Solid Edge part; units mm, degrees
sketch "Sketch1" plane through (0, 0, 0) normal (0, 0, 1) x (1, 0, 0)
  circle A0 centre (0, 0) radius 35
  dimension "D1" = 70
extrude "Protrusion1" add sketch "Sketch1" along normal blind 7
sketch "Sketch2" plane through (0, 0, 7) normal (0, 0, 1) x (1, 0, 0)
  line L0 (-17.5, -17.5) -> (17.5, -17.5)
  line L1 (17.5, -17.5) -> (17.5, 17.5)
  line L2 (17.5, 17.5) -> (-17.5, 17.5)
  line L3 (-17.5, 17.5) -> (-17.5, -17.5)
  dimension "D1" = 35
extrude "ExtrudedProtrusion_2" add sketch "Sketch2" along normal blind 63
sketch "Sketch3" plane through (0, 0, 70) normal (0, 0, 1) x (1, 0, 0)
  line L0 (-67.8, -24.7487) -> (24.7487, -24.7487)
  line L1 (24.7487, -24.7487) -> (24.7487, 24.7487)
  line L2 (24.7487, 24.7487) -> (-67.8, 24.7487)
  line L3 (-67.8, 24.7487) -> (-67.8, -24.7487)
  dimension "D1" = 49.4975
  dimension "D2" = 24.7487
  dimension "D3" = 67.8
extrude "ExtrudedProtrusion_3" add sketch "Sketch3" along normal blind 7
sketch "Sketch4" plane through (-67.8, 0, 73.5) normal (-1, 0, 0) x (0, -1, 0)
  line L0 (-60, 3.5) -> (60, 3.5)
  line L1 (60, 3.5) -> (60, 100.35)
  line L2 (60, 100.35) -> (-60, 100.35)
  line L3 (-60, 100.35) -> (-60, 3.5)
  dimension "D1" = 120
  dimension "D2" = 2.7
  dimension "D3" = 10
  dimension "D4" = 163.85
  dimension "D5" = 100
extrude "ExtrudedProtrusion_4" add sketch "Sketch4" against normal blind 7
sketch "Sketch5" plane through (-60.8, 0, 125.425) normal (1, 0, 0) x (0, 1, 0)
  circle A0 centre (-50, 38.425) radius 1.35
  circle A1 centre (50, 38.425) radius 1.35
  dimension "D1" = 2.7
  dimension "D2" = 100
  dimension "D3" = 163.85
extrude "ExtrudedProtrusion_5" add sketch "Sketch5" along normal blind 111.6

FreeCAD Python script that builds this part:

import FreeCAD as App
import Part
import Sketcher

V = App.Vector


def add_polygon(sketch, points):
    """Adds a closed chain of lines whose ends are joined by coincident constraints."""
    first, n = sketch.GeometryCount, len(points)
    for a, b in zip(points, points[1:] + points[:1]):
        sketch.addGeometry(Part.LineSegment(App.Vector(*a, 0), App.Vector(*b, 0)), False)
    for i in range(n):
        sketch.addConstraint(Sketcher.Constraint("Coincident", first + i, 2, first + (i + 1) % n, 1))

doc = App.newDocument("Part")
body = doc.addObject("PartDesign::Body", "Body")

sketch1 = body.newObject("Sketcher::SketchObject", "Sketch")
sketch1.AttachmentSupport = (doc.getObject("XY_Plane"), [""])
sketch1.MapMode = "FlatFace"
sketch1.addGeometry(Part.Circle(V(0, 0, 0), V(0, 0, 1), 35), False)
sketch1.addConstraint([
    Sketcher.Constraint("Coincident", 0, 3, -1, 1),
    Sketcher.Constraint("Diameter", 0, 70.0),
])
pad1 = body.newObject("PartDesign::Pad", "Pad")
pad1.Profile = sketch1
pad1.Length = 7

sketch2 = body.newObject("Sketcher::SketchObject", "Sketch001")
sketch2.AttachmentSupport = (doc.getObject("XY_Plane"), [""])
sketch2.MapMode = "FlatFace"
sketch2.AttachmentOffset = App.Placement(V(0, 0, 7), App.Rotation())
add_polygon(sketch2, [(-18, 18), (-18, -18), (18, -18), (18, 18)])
sketch2.addConstraint([
    Sketcher.Constraint("Vertical", 0),
    Sketcher.Constraint("Horizontal", 1),
    Sketcher.Constraint("Vertical", 2),
    Sketcher.Constraint("Horizontal", 3),
    Sketcher.Constraint("Symmetric", 0, 2, 2, 2, -1, 1),
    Sketcher.Constraint("Equal", 3, 0),
    Sketcher.Constraint("DistanceX", 0, 2, -1, 1, 17.5),
])
pad2 = body.newObject("PartDesign::Pad", "Pad001")
pad2.Profile = sketch2
pad2.Length = 63

sketch3 = body.newObject("Sketcher::SketchObject", "Sketch002")
sketch3.AttachmentSupport = (doc.getObject("XY_Plane"), [""])
sketch3.MapMode = "FlatFace"
sketch3.AttachmentOffset = App.Placement(V(0, 0, 70), App.Rotation())
add_polygon(sketch3, [(-68, 25), (-68, -25), (25, -25), (25, 25)])
sketch3.addConstraint([
    Sketcher.Constraint("Vertical", 0),
    Sketcher.Constraint("Horizontal", 1),
    Sketcher.Constraint("Vertical", 2),
    Sketcher.Constraint("Horizontal", 3),
    Sketcher.Constraint("DistanceY", 0, 2, -1, 1, 24.7487),
    Sketcher.Constraint("DistanceX", -1, 1, 1, 2, 24.7487),
    Sketcher.Constraint("DistanceY", -1, 1, 2, 2, 24.7487),
    Sketcher.Constraint("DistanceX", 0, 2, -1, 1, 67.8),
])
pad3 = body.newObject("PartDesign::Pad", "Pad002")
pad3.Profile = sketch3
pad3.Length = 7

sketch4 = body.newObject("Sketcher::SketchObject", "Sketch003")
sketch4.AttachmentSupport = (doc.getObject("YZ_Plane"), [""])
sketch4.MapMode = "FlatFace"
sketch4.AttachmentOffset = App.Placement(V(0, 0, -67.8), App.Rotation())
add_polygon(sketch4, [(60, 174), (60, 77), (-60, 77), (-60, 174)])
sketch4.addConstraint([
    Sketcher.Constraint("Vertical", 0),
    Sketcher.Constraint("Horizontal", 1),
    Sketcher.Constraint("Vertical", 2),
    Sketcher.Constraint("Horizontal", 3),
    Sketcher.Constraint("DistanceX", -1, 1, 0, 2, 60.0),
    Sketcher.Constraint("DistanceX", 1, 2, -1, 1, 60.0),
    Sketcher.Constraint("DistanceY", -1, 1, 0, 2, 77.0),
    Sketcher.Constraint("DistanceY", 0, 2, 0, 1, 96.85),
])
pad4 = body.newObject("PartDesign::Pad", "Pad003")
pad4.Profile = sketch4
pad4.Length = 7

sketch5 = body.newObject("Sketcher::SketchObject", "Sketch004")
sketch5.AttachmentSupport = (doc.getObject("YZ_Plane"), [""])
sketch5.MapMode = "FlatFace"
sketch5.AttachmentOffset = App.Placement(V(0, 0, -60.8), App.Rotation())
sketch5.addGeometry([
    Part.Circle(V(-50, 163.8, 0), V(0, 0, 1), 1.4),
    Part.Circle(V(50, 163.8, 0), V(0, 0, 1), 1.4),
], False)
sketch5.addConstraint([
    Sketcher.Constraint("Equal", 0, 1),
    Sketcher.Constraint("Symmetric", 0, 3, 1, 3, -2),
    Sketcher.Constraint("DistanceX", 0, 3, -1, 1, 50.0),
    Sketcher.Constraint("Diameter", 0, 2.7),
    Sketcher.Constraint("DistanceY", -1, 1, 0, 3, 163.85),
])
pad5 = body.newObject("PartDesign::Pad", "Pad004")
pad5.Profile = sketch5
pad5.Length = 111.6

doc.recompute()
